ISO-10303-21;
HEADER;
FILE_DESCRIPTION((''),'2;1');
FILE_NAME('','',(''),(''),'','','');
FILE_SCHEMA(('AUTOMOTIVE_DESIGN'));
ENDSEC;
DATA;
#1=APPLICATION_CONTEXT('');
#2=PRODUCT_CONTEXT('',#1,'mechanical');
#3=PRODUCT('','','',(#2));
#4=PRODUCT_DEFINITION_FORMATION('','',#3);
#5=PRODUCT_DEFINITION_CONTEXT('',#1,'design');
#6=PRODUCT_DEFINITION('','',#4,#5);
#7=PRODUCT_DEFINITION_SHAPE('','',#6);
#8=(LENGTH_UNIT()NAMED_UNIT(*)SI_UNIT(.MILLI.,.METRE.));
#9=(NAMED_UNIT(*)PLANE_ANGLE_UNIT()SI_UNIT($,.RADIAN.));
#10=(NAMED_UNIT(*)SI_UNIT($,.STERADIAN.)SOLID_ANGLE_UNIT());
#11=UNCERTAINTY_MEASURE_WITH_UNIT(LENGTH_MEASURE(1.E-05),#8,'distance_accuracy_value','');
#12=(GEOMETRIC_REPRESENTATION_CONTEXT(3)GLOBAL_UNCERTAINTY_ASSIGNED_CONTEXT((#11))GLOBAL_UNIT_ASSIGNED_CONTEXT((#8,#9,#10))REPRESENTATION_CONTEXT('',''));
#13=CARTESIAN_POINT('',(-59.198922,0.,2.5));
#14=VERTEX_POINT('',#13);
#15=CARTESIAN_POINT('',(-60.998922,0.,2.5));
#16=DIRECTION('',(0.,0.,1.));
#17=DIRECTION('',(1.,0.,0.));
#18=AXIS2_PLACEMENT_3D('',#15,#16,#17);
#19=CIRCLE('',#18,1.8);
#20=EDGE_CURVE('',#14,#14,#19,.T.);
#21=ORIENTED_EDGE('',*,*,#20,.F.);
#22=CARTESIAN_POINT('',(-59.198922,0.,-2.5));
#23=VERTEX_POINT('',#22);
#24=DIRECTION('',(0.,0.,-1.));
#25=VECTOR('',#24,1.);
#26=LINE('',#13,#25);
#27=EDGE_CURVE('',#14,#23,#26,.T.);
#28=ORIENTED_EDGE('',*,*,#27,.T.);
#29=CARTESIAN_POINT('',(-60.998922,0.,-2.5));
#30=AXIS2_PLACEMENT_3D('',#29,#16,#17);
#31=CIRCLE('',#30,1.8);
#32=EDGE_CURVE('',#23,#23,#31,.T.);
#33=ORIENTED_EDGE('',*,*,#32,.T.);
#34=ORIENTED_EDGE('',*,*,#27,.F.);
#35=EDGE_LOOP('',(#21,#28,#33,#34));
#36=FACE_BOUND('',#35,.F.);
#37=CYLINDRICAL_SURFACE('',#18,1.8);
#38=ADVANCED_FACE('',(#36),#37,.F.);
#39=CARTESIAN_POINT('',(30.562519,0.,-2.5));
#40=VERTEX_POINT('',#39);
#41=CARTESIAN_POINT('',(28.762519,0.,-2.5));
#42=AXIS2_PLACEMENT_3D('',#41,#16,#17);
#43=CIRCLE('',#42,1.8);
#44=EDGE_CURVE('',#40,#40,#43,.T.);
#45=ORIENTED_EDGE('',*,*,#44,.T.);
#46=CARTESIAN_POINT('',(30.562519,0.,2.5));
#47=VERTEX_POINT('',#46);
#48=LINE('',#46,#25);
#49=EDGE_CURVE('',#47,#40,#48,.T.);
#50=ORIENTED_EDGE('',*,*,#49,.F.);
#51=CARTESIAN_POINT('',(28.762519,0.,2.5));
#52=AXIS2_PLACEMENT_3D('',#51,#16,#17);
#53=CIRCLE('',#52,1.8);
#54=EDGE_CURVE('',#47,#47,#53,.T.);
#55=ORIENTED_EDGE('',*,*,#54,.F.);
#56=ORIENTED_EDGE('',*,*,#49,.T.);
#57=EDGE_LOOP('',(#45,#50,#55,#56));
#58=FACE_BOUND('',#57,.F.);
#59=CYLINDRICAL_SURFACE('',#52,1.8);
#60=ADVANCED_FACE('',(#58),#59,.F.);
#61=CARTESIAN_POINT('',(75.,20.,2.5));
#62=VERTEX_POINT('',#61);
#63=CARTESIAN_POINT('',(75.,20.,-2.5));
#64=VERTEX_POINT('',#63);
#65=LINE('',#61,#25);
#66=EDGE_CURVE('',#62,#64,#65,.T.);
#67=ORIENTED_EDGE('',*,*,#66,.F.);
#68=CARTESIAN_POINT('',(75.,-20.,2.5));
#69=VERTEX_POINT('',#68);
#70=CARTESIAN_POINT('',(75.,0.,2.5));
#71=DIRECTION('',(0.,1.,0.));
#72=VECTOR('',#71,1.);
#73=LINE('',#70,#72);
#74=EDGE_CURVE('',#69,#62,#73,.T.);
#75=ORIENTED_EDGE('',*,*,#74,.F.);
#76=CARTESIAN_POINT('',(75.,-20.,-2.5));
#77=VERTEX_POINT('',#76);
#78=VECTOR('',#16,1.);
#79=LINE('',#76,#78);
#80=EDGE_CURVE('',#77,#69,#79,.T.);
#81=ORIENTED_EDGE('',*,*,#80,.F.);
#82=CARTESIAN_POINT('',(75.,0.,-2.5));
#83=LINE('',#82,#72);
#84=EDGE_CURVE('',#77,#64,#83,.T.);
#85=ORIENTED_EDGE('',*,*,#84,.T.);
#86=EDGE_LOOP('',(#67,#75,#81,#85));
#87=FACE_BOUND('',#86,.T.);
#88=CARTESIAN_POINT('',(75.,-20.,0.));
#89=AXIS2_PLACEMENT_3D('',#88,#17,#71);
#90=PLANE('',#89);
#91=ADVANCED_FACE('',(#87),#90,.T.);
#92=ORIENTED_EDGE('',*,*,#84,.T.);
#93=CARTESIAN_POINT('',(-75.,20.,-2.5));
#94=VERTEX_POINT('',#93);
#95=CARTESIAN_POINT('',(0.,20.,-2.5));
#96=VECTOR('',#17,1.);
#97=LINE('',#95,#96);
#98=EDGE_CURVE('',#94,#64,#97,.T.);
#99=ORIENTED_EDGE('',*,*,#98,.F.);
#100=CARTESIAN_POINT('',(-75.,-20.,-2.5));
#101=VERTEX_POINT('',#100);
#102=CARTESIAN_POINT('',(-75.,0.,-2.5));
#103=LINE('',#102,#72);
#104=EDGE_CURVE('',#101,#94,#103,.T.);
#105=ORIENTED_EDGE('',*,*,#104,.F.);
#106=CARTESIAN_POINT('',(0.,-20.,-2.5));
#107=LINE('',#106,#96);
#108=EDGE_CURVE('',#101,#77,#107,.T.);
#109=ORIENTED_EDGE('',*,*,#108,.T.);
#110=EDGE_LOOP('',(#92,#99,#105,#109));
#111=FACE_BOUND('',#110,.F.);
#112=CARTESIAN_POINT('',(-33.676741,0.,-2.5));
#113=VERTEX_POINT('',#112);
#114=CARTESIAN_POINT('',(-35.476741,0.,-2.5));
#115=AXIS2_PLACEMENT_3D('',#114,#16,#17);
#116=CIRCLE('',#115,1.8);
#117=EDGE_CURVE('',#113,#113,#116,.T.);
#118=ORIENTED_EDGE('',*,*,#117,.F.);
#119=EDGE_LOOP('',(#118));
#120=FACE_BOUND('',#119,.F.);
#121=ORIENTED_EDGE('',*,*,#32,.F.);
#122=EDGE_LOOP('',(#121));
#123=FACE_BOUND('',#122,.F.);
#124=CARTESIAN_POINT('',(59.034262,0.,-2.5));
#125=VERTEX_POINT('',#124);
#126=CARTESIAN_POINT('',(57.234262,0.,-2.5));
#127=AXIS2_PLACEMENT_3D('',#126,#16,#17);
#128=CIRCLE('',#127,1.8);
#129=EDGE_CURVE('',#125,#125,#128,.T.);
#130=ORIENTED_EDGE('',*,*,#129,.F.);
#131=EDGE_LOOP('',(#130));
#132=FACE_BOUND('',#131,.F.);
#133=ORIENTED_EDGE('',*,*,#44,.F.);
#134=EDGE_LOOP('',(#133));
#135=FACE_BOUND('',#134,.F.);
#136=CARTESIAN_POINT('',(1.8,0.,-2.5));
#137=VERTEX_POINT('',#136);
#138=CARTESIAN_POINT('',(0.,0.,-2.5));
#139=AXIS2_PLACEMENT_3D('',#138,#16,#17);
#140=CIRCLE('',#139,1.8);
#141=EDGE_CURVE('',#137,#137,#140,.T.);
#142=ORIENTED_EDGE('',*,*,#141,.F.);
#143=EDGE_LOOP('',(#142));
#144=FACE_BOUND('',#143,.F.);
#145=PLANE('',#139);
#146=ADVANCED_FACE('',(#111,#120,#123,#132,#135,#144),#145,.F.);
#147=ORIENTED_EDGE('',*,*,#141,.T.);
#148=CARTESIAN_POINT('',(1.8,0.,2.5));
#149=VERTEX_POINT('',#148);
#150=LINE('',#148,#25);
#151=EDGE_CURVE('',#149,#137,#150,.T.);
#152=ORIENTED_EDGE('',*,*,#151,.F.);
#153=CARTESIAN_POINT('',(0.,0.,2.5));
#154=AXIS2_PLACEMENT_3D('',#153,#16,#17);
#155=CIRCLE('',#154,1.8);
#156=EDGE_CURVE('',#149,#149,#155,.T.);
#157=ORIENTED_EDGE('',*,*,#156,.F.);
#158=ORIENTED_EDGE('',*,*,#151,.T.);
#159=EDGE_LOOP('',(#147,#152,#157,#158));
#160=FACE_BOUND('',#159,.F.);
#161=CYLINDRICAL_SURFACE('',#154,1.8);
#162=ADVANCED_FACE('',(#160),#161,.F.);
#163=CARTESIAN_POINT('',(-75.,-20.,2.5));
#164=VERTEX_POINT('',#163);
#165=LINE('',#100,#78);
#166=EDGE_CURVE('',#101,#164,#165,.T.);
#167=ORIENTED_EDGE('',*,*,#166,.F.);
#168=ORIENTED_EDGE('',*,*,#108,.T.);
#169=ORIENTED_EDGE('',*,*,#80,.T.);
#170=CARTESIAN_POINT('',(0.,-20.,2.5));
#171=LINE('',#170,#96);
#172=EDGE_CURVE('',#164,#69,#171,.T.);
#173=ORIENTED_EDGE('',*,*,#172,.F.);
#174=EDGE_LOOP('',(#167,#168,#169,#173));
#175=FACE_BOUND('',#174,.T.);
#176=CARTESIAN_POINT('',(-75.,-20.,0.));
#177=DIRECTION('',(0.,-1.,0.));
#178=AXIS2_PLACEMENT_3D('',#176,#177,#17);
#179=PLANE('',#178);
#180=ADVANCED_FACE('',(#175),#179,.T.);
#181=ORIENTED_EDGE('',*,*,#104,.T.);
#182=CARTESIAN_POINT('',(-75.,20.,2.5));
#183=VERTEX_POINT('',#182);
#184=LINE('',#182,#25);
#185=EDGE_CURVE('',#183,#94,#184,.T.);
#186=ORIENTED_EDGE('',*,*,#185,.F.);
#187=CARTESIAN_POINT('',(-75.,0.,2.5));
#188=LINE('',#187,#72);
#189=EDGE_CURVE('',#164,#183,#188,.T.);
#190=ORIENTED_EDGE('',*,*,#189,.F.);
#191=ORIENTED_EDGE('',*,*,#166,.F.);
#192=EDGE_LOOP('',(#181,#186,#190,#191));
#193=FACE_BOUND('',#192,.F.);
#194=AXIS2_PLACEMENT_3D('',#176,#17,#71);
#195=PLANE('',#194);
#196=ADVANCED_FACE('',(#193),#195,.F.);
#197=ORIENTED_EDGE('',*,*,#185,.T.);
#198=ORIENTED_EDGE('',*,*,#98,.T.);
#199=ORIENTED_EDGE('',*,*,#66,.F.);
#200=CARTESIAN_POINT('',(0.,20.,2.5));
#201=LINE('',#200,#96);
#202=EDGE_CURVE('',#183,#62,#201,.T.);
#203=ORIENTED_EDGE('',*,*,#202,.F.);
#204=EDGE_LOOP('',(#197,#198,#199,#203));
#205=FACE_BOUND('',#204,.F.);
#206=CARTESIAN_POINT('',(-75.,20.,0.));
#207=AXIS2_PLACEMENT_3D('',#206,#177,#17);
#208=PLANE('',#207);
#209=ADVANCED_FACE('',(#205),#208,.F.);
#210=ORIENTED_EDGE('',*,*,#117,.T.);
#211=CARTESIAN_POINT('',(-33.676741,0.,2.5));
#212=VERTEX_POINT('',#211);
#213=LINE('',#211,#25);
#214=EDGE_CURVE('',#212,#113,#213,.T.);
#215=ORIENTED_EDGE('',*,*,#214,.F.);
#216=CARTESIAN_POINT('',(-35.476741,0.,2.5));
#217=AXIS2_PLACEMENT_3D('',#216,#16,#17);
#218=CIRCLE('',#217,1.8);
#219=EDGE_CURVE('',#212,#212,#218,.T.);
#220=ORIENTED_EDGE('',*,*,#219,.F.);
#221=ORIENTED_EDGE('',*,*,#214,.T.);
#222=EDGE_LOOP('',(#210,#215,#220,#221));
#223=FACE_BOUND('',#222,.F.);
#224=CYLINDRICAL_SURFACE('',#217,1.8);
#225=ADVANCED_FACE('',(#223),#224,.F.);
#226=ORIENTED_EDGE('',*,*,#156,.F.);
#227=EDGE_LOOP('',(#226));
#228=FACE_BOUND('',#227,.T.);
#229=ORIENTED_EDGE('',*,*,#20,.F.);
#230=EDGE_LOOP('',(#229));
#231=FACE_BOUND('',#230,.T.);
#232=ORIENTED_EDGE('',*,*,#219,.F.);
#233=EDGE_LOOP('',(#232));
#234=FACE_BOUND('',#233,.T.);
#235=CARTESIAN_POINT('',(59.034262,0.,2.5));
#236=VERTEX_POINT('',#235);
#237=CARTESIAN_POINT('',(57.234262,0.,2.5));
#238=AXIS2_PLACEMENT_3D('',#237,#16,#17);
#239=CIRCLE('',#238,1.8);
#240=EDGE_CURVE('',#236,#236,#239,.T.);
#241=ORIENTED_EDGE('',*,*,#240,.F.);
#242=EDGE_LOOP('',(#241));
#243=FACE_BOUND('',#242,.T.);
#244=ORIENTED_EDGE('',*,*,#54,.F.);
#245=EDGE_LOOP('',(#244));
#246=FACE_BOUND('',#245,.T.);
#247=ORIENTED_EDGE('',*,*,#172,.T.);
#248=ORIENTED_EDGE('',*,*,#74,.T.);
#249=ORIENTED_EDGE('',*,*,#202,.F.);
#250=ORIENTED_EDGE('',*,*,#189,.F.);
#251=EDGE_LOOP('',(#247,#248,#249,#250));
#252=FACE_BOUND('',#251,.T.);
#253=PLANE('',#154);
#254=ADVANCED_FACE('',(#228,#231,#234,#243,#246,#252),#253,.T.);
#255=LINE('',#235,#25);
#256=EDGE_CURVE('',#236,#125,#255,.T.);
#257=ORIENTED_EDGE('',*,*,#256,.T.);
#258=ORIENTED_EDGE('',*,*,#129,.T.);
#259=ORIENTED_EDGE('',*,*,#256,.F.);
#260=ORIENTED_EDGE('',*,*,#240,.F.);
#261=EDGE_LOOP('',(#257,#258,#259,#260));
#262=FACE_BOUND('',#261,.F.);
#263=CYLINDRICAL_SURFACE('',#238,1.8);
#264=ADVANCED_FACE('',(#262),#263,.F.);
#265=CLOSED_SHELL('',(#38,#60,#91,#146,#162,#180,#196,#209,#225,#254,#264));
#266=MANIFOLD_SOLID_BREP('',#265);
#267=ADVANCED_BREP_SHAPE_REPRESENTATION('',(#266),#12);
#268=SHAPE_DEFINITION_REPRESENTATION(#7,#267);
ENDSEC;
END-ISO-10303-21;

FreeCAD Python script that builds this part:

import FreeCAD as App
import Part
import Sketcher

doc = App.newDocument("Part")
body = doc.addObject("PartDesign::Body", "Body")

sketch1 = doc.addObject("Sketcher::SketchObject", "Sketch")
body.addObject(sketch1)
sketch1.AttachmentSupport = (doc.XY_Plane, [""])
sketch1.MapMode = "FlatFace"
sketch1.addGeometry(Part.LineSegment(App.Vector(-75, 20, 0), App.Vector(-75, -20, 0)), False)
sketch1.addGeometry(Part.LineSegment(App.Vector(-75, -20, 0), App.Vector(75, -20, 0)), False)
sketch1.addGeometry(Part.LineSegment(App.Vector(75, -20, 0), App.Vector(75, 20, 0)), False)
sketch1.addGeometry(Part.LineSegment(App.Vector(75, 20, 0), App.Vector(-75, 20, 0)), False)
sketch1.addConstraint(Sketcher.Constraint("Coincident", 0, 2, 1, 1))
sketch1.addConstraint(Sketcher.Constraint("Coincident", 1, 2, 2, 1))
sketch1.addConstraint(Sketcher.Constraint("Coincident", 2, 2, 3, 1))
sketch1.addConstraint(Sketcher.Constraint("Coincident", 3, 2, 0, 1))
sketch1.addConstraint(Sketcher.Constraint("Vertical", 0))
sketch1.addConstraint(Sketcher.Constraint("Horizontal", 1))
sketch1.addConstraint(Sketcher.Constraint("Vertical", 2))
sketch1.addConstraint(Sketcher.Constraint("Horizontal", 3))
sketch1.addConstraint(Sketcher.Constraint("Symmetric", 0, 2, 2, 2, -1, 1))
sketch1.addConstraint(Sketcher.Constraint("DistanceX", 1, 1, 1, 2, 150.0))
sketch1.addConstraint(Sketcher.Constraint("DistanceY", 0, 2, 0, 1, 40.0))
pad1 = doc.addObject("PartDesign::Pad", "Pad")
body.addObject(pad1)
pad1.Profile = sketch1
pad1.Length = 5
pad1.Midplane = True

sketch2 = doc.addObject("Sketcher::SketchObject", "Sketch001")
body.addObject(sketch2)
sketch2.AttachmentSupport = (doc.XY_Plane, [""])
sketch2.MapMode = "FlatFace"
sketch2.AttachmentOffset = App.Placement(App.Vector(0, 0, 2.5), App.Rotation())
sketch2.addGeometry(Part.Circle(App.Vector(57.2, 0, 0), App.Vector(0, 0, 1), 1.8), False)
sketch2.addGeometry(Part.Circle(App.Vector(28.8, 0, 0), App.Vector(0, 0, 1), 1.8), False)
sketch2.addGeometry(Part.Circle(App.Vector(0, 0, 0), App.Vector(0, 0, 1), 1.8), False)
sketch2.addGeometry(Part.Circle(App.Vector(-35.5, 0, 0), App.Vector(0, 0, 1), 1.8), False)
sketch2.addGeometry(Part.Circle(App.Vector(-61, 0, 0), App.Vector(0, 0, 1), 1.8), False)
sketch2.addConstraint(Sketcher.Constraint("Coincident", 2, 3, -1, 1))
sketch2.addConstraint(Sketcher.Constraint("Equal", 0, 1))
sketch2.addConstraint(Sketcher.Constraint("Equal", 1, 2))
sketch2.addConstraint(Sketcher.Constraint("Equal", 2, 3))
sketch2.addConstraint(Sketcher.Constraint("Equal", 3, 4))
sketch2.addConstraint(Sketcher.Constraint("PointOnObject", 0, 3, -1))
sketch2.addConstraint(Sketcher.Constraint("PointOnObject", 1, 3, -1))
sketch2.addConstraint(Sketcher.Constraint("PointOnObject", 3, 3, -1))
sketch2.addConstraint(Sketcher.Constraint("PointOnObject", 4, 3, -1))
sketch2.addConstraint(Sketcher.Constraint("Diameter", 0, 3.6))
sketch2.addConstraint(Sketcher.Constraint("DistanceX", -1, 1, 1, 3, 28.762519))
sketch2.addConstraint(Sketcher.Constraint("DistanceX", 3, 3, -1, 1, 35.476741))
sketch2.addConstraint(Sketcher.Constraint("DistanceX", 4, 3, 3, 3, 25.522181))
sketch2.addConstraint(Sketcher.Constraint("DistanceX", -1, 1, 0, 3, 57.234262))
pocket1 = doc.addObject("PartDesign::Pocket", "Pocket")
body.addObject(pocket1)
pocket1.Profile = sketch2
pocket1.Length = 8

doc.recompute()
